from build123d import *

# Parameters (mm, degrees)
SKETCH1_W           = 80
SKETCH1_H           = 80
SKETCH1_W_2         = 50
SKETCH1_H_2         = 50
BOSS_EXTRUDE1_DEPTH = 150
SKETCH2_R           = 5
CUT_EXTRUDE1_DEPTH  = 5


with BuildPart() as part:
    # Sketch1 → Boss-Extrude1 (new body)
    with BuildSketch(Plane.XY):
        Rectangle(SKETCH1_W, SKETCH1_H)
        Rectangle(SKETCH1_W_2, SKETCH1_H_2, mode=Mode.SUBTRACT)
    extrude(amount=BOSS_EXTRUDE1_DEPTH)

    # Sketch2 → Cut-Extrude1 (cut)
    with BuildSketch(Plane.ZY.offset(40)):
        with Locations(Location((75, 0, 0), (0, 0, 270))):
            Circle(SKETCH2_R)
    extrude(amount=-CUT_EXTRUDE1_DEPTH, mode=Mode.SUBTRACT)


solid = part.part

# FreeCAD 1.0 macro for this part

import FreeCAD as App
import Part
import Sketcher
from FreeCAD import Vector

doc = App.newDocument("Part")
body = doc.addObject("PartDesign::Body", "Body")

# Sketch on XY plane
sketch1 = body.newObject("Sketcher::SketchObject", "Sketch")
sketch1.AttachmentSupport = (doc.getObject("XY_Plane"), [""])
sketch1.MapMode = "FlatFace"
sketch1.addGeometry([
    Part.LineSegment(Vector(-40, 40, 0), Vector(-40, -40, 0)),  # 0
    Part.LineSegment(Vector(-40, -40, 0), Vector(40, -40, 0)),  # 1
    Part.LineSegment(Vector(40, -40, 0), Vector(40, 40, 0)),  # 2
    Part.LineSegment(Vector(40, 40, 0), Vector(-40, 40, 0)),  # 3
    Part.LineSegment(Vector(25, -25, 0), Vector(-25, -25, 0)),  # 4
    Part.LineSegment(Vector(-25, -25, 0), Vector(-25, 25, 0)),  # 5
    Part.LineSegment(Vector(-25, 25, 0), Vector(25, 25, 0)),  # 6
    Part.LineSegment(Vector(25, 25, 0), Vector(25, -25, 0)),  # 7
], False)
sketch1.addConstraint([
    Sketcher.Constraint("Coincident", 0, 2, 1, 1),
    Sketcher.Constraint("Coincident", 1, 2, 2, 1),
    Sketcher.Constraint("Coincident", 2, 2, 3, 1),
    Sketcher.Constraint("Coincident", 3, 2, 0, 1),
    Sketcher.Constraint("Coincident", 4, 2, 5, 1),
    Sketcher.Constraint("Coincident", 5, 2, 6, 1),
    Sketcher.Constraint("Coincident", 6, 2, 7, 1),
    Sketcher.Constraint("Coincident", 7, 2, 4, 1),
    Sketcher.Constraint("Vertical", 0),
    Sketcher.Constraint("Horizontal", 1),
    Sketcher.Constraint("Vertical", 2),
    Sketcher.Constraint("Horizontal", 3),
    Sketcher.Constraint("Horizontal", 4),
    Sketcher.Constraint("Vertical", 5),
    Sketcher.Constraint("Horizontal", 6),
    Sketcher.Constraint("Vertical", 7),
    Sketcher.Constraint("Symmetric", 0, 2, 2, 2, -1, 1),
    Sketcher.Constraint("Symmetric", 4, 2, 6, 2, -1, 1),
    Sketcher.Constraint("Equal", 3, 0),
    Sketcher.Constraint("Equal", 6, 5),
    Sketcher.Constraint("DistanceX", 1, 1, 1, 2, 80.0),
    Sketcher.Constraint("DistanceX", 4, 2, 4, 1, 50.0),
])
pad1 = body.newObject("PartDesign::Pad", "Pad")
pad1.Profile = sketch1
pad1.Length = 150

# Sketch on YZ plane
sketch2 = body.newObject("Sketcher::SketchObject", "Sketch001")
sketch2.AttachmentSupport = (doc.getObject("YZ_Plane"), [""])
sketch2.MapMode = "FlatFace"
sketch2.AttachmentOffset = App.Placement(Vector(0, 0, -40), App.Rotation())
sketch2.addGeometry(Part.Circle(Vector(0, 75, 0), Vector(0, 0, 1), 5), False)
sketch2.addConstraint([
    Sketcher.Constraint("PointOnObject", 0, 3, -2),
    Sketcher.Constraint("Diameter", 0, 10.0),
    Sketcher.Constraint("DistanceY", -1, 1, 0, 3, 75.0),
])
pocket1 = body.newObject("PartDesign::Pocket", "Pocket")
pocket1.Profile = sketch2
pocket1.Length = 5
pocket1.Reversed = True

doc.recompute()
